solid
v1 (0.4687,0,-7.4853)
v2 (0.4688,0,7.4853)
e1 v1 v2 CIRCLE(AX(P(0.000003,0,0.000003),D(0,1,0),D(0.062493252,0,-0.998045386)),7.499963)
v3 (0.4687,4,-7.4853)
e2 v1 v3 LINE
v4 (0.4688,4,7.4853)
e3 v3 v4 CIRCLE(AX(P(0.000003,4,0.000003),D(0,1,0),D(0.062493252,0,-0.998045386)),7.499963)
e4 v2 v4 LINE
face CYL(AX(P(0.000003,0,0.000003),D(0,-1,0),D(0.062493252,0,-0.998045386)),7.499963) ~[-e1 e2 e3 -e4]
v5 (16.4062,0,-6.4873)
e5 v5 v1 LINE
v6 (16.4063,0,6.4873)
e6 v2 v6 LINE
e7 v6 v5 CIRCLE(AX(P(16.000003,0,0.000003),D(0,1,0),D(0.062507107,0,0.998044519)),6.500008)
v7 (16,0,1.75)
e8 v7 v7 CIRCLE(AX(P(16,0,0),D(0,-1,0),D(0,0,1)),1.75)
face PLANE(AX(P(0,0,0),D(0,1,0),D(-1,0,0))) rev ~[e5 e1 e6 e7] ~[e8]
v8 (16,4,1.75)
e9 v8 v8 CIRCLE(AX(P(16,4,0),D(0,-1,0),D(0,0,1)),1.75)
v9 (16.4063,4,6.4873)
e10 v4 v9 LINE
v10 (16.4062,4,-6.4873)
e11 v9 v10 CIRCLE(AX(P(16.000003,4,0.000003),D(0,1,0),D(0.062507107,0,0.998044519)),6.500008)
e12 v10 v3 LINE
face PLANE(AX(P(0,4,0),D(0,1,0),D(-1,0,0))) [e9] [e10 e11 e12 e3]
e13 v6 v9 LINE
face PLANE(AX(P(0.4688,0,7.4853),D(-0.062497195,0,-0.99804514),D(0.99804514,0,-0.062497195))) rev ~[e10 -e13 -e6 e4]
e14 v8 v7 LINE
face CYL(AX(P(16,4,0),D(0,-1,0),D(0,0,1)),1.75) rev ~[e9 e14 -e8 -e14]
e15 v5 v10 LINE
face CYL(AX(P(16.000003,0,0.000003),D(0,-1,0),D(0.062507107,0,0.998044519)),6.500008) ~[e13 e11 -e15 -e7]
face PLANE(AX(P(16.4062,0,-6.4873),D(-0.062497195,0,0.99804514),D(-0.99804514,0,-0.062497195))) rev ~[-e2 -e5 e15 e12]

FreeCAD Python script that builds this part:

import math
import FreeCAD as App
import Part
import Sketcher
Q = App.Units.Quantity

doc = App.newDocument("Part")
body = doc.addObject("PartDesign::Body", "Body")

# Sketch on XZ plane
sketch1 = body.newObject("Sketcher::SketchObject", "Sketch")
sketch1.AttachmentSupport = (doc.getObject("XZ_Plane"), [""])
sketch1.MapMode = "FlatFace"
sketch1.addGeometry(Part.ArcOfCircle(Part.Circle(App.Vector(0, 0, 0), App.Vector(0, 0, 1), 7), math.radians(86), math.radians(274)), False)
sketch1.addGeometry(Part.LineSegment(App.Vector(0, 7, 0), App.Vector(16, 6, 0)), False)
sketch1.addGeometry(Part.ArcOfCircle(Part.Circle(App.Vector(16, 0, 0), App.Vector(0, 0, 1), 7), math.radians(-86), math.radians(86)), False)
sketch1.addGeometry(Part.LineSegment(App.Vector(16, -6, 0), App.Vector(0, -7, 0)), False)
sketch1.addConstraint(Sketcher.Constraint("Tangent", 0, 1, 1, 1))
sketch1.addConstraint(Sketcher.Constraint("Tangent", 1, 2, 2, 2))
sketch1.addConstraint(Sketcher.Constraint("Tangent", 2, 1, 3, 1))
sketch1.addConstraint(Sketcher.Constraint("Tangent", 3, 2, 0, 2))
sketch1.addConstraint(Sketcher.Constraint("Coincident", 0, 3, -1, 1))
sketch1.addConstraint(Sketcher.Constraint("PointOnObject", 2, 3, -1))
sketch1.addConstraint(Sketcher.Constraint("Radius", 0, Q("7.5 mm")))
sketch1.addConstraint(Sketcher.Constraint("Radius", 2, Q("6.5 mm")))
sketch1.addConstraint(Sketcher.Constraint("DistanceX", -1, 1, 2, 3, Q("16 mm")))
pad1 = body.newObject("PartDesign::Pad", "Pad")
pad1.Profile = sketch1
pad1.Length = 4
pad1.Reversed = True

# Sketch on XZ plane
sketch2 = body.newObject("Sketcher::SketchObject", "Sketch001")
sketch2.AttachmentSupport = (doc.getObject("XZ_Plane"), [""])
sketch2.MapMode = "FlatFace"
sketch2.AttachmentOffset = App.Placement(App.Vector(0, 0, -4), App.Rotation())
sketch2.addGeometry(Part.Circle(App.Vector(16, 0, 0), App.Vector(0, 0, 1), 1.8), False)
sketch2.addConstraint(Sketcher.Constraint("PointOnObject", 0, 3, -1))
sketch2.addConstraint(Sketcher.Constraint("Diameter", 0, Q("3.5 mm")))
sketch2.addConstraint(Sketcher.Constraint("DistanceX", -1, 1, 0, 3, Q("16 mm")))
doc.recompute()
hole = body.newObject("PartDesign::Hole", "Hole")
hole.Profile = sketch2
hole.ThreadType = "None"
hole.Diameter = 3.5
hole.DepthType = "ThroughAll"
hole.Reversed = True

doc.recompute()
